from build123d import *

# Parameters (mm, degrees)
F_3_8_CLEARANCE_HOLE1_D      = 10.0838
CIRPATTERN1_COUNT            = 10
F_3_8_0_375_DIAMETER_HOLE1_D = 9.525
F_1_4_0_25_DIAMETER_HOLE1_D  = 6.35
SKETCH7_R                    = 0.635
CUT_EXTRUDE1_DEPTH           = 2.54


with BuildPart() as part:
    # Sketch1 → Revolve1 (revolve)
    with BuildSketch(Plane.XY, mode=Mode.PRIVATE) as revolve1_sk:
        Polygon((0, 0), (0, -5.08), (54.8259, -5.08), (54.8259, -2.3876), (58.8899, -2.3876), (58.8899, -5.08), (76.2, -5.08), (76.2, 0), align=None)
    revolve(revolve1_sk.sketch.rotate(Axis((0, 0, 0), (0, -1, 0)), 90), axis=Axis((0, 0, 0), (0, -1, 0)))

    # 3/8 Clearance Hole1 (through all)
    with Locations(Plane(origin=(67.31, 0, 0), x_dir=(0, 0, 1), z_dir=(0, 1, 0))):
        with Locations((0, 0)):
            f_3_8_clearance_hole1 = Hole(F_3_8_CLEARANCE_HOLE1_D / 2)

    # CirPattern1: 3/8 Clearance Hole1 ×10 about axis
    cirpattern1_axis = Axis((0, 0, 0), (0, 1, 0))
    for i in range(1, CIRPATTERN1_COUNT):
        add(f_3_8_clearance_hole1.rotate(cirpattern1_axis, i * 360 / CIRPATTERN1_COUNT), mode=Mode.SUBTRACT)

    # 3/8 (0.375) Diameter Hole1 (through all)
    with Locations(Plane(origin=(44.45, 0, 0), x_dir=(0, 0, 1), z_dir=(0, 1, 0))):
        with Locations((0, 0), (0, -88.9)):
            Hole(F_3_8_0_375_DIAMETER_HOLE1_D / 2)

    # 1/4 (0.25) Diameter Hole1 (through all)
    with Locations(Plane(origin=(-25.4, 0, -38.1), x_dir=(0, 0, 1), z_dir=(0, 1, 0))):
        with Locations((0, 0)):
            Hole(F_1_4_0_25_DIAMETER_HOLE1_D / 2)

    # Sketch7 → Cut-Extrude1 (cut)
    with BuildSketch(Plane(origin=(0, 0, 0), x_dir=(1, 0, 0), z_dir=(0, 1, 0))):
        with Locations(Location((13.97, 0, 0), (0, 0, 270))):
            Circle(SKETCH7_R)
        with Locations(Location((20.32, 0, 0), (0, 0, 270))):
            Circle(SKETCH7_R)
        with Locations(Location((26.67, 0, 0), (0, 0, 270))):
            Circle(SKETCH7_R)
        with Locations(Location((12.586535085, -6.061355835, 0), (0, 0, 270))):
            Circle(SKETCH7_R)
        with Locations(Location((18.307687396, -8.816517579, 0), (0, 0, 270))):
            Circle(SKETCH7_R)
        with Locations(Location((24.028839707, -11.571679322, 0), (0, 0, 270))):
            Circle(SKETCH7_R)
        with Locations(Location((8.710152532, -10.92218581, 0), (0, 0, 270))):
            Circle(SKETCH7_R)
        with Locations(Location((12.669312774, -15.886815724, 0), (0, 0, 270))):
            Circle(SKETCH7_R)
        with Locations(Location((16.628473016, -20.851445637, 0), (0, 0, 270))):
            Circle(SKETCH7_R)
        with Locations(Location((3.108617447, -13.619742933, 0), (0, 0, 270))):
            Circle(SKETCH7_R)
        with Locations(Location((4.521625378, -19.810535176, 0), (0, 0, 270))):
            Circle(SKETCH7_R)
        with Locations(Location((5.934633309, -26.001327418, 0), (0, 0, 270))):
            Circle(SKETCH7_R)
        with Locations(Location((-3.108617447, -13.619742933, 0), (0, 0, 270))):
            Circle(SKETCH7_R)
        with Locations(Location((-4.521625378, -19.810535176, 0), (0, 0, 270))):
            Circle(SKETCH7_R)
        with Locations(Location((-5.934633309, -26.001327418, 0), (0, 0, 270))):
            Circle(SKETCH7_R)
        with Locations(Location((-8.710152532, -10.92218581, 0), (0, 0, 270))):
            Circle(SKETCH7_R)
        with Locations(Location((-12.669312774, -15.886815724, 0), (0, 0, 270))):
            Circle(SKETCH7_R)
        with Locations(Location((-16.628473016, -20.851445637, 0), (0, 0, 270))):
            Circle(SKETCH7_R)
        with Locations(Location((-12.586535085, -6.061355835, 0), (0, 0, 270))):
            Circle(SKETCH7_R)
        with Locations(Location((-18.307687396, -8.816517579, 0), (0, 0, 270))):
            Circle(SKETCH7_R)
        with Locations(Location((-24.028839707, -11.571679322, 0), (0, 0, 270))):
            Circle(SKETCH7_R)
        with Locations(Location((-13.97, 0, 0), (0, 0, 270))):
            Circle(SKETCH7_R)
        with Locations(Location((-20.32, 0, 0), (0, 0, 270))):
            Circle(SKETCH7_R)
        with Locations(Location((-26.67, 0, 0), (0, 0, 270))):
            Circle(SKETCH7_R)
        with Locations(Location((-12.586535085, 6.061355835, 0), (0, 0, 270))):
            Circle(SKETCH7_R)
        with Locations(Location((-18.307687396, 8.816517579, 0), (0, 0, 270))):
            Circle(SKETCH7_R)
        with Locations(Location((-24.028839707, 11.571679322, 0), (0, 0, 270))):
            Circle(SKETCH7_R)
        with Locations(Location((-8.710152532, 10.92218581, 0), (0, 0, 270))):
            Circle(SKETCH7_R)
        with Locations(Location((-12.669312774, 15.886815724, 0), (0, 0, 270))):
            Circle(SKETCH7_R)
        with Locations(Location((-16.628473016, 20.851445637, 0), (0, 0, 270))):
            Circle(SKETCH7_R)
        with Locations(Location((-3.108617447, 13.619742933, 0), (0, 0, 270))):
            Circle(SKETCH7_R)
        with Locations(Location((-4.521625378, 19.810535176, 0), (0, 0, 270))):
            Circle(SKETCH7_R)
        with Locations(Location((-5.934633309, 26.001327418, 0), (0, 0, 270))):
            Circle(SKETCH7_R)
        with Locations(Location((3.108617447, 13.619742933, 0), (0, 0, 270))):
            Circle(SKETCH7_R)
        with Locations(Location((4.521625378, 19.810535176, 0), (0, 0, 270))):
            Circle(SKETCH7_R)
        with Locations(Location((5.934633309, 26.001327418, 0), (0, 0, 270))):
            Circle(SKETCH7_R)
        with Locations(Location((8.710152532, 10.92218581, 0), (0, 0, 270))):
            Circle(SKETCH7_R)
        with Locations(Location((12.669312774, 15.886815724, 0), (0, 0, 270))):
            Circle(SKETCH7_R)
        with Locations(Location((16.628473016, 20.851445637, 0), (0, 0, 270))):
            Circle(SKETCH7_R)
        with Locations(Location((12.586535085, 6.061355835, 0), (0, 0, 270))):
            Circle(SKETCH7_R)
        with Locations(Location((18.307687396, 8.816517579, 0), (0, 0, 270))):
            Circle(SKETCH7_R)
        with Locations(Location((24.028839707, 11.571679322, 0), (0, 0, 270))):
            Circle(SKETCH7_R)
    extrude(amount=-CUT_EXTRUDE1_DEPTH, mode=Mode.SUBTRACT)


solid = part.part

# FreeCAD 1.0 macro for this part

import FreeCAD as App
import Part
import Sketcher
from FreeCAD import Vector
Q = App.Units.Quantity


def add_polygon(sketch, points):
    """Adds a closed chain of lines whose ends are joined by coincident constraints."""
    first, n = sketch.GeometryCount, len(points)
    for a, b in zip(points, points[1:] + points[:1]):
        sketch.addGeometry(Part.LineSegment(App.Vector(*a, 0), App.Vector(*b, 0)), False)
    for i in range(n):
        sketch.addConstraint(Sketcher.Constraint("Coincident", first + i, 2, first + (i + 1) % n, 1))

doc = App.newDocument("Part")
body = doc.addObject("PartDesign::Body", "Body")

# Sketch on XY plane
sketch1 = body.newObject("Sketcher::SketchObject", "Sketch")
sketch1.AttachmentSupport = (doc.getObject("XY_Plane"), [""])
sketch1.MapMode = "FlatFace"
add_polygon(sketch1, [(0, 0), (0, -5.08), (54.8259, -5.08), (54.8259, -2.3876), (58.8899, -2.3876), (58.8899, -5.08), (76.2, -5.08), (76.2, 0)])  # lines 0-7
sketch1.addConstraint(Sketcher.Constraint("Vertical", 0))
sketch1.addConstraint(Sketcher.Constraint("Horizontal", 1))
sketch1.addConstraint(Sketcher.Constraint("Vertical", 2))
sketch1.addConstraint(Sketcher.Constraint("Horizontal", 3))
sketch1.addConstraint(Sketcher.Constraint("Vertical", 4))
sketch1.addConstraint(Sketcher.Constraint("Horizontal", 5))
sketch1.addConstraint(Sketcher.Constraint("Vertical", 6))
sketch1.addConstraint(Sketcher.Constraint("Horizontal", 7))
sketch1.addConstraint(Sketcher.Constraint("Coincident", 7, 2, -1, 1))
sketch1.addConstraint(Sketcher.Constraint("Horizontal", 1, 2, 4, 2))
sketch1.addConstraint(Sketcher.Constraint("DistanceX", 7, 2, 7, 1, Q("3 in")))
sketch1.addConstraint(Sketcher.Constraint("DistanceY", 0, 2, 0, 1, Q("0.2 in")))
sketch1.addConstraint(Sketcher.Constraint("DistanceX", 3, 1, 3, 2, Q("0.16 in")))
sketch1.addConstraint(Sketcher.Constraint("DistanceY", 2, 1, 2, 2, Q("0.106 in")))
sketch1.addConstraint(Sketcher.Constraint("DistanceX", 1, 1, 1, 2, Q("2.1585 in")))
revolution = body.newObject("PartDesign::Revolution", "Revolution")
revolution.Profile = sketch1
revolution.ReferenceAxis = (sketch1, ["V_Axis"])
revolution.Angle = 360

# Sketch on XZ plane
sketch2 = body.newObject("Sketcher::SketchObject", "Sketch001")
sketch2.AttachmentSupport = (doc.getObject("XZ_Plane"), [""])
sketch2.MapMode = "FlatFace"
sketch2.addGeometry(Part.Circle(Vector(67.31, 0, 0), Vector(0, 0, 1), 5.0419), False)
sketch2.addConstraint(Sketcher.Constraint("PointOnObject", 0, 3, -1))
sketch2.addConstraint(Sketcher.Constraint("Diameter", 0, Q("0.397 in")))
sketch2.addConstraint(Sketcher.Constraint("DistanceX", -1, 1, 0, 3, Q("2.65 in")))
doc.recompute()
hole = body.newObject("PartDesign::Hole", "Hole")
hole.Profile = sketch2
hole.ThreadType = "None"
hole.Diameter = Q("0.397 in")
hole.DepthType = "ThroughAll"
hole.Reversed = True
doc.recompute()

polarpattern = body.newObject("PartDesign::PolarPattern", "PolarPattern")
polarpattern.Originals = [hole]
polarpattern.Axis = (doc.getObject("Y_Axis"), [""])
polarpattern.Angle = 360
polarpattern.Occurrences = 10
body.Tip = polarpattern

# Sketch on XZ plane
sketch3 = body.newObject("Sketcher::SketchObject", "Sketch002")
sketch3.AttachmentSupport = (doc.getObject("XZ_Plane"), [""])
sketch3.MapMode = "FlatFace"
sketch3.addGeometry(Part.Circle(Vector(44.45, 0, 0), Vector(0, 0, 1), 4.7625), False)
sketch3.addGeometry(Part.Circle(Vector(-44.45, 0, 0), Vector(0, 0, 1), 4.7625), False)
sketch3.addConstraint(Sketcher.Constraint("Equal", 0, 1))
sketch3.addConstraint(Sketcher.Constraint("Symmetric", 0, 3, 1, 3, -1, 1))
sketch3.addConstraint(Sketcher.Constraint("PointOnObject", 0, 3, -1))
sketch3.addConstraint(Sketcher.Constraint("Diameter", 0, Q("0.375 in")))
sketch3.addConstraint(Sketcher.Constraint("DistanceX", 1, 3, 0, 3, Q("3.5 in")))
doc.recompute()
hole2 = body.newObject("PartDesign::Hole", "Hole001")
hole2.Profile = sketch3
hole2.ThreadType = "None"
hole2.Diameter = Q("0.375 in")
hole2.DepthType = "ThroughAll"
hole2.Reversed = True

# Sketch on XZ plane
sketch4 = body.newObject("Sketcher::SketchObject", "Sketch003")
sketch4.AttachmentSupport = (doc.getObject("XZ_Plane"), [""])
sketch4.MapMode = "FlatFace"
sketch4.addGeometry(Part.Circle(Vector(-25.4, -38.1, 0), Vector(0, 0, 1), 3.175), False)
sketch4.addConstraint(Sketcher.Constraint("Diameter", 0, Q("0.25 in")))
sketch4.addConstraint(Sketcher.Constraint("DistanceX", 0, 3, -1, 1, Q("1 in")))
sketch4.addConstraint(Sketcher.Constraint("DistanceY", 0, 3, -1, 1, Q("1.5 in")))
doc.recompute()
hole3 = body.newObject("PartDesign::Hole", "Hole002")
hole3.Profile = sketch4
hole3.ThreadType = "None"
hole3.Diameter = Q("0.25 in")
hole3.DepthType = "ThroughAll"
hole3.Reversed = True

# Sketch on XZ plane
sketch5 = body.newObject("Sketcher::SketchObject", "Sketch004")
sketch5.AttachmentSupport = (doc.getObject("XZ_Plane"), [""])
sketch5.MapMode = "FlatFace"
sketch5.addGeometry(Part.Circle(Vector(13.97, 0, 0), Vector(0, 0, 1), 0.635), False)
sketch5.addGeometry(Part.Circle(Vector(20.32, 0, 0), Vector(0, 0, 1), 0.635), False)
sketch5.addGeometry(Part.Circle(Vector(26.67, 0, 0), Vector(0, 0, 1), 0.635), False)
sketch5.addGeometry(Part.Circle(Vector(12.586535, 6.061356, 0), Vector(0, 0, 1), 0.635), False)
sketch5.addGeometry(Part.Circle(Vector(18.307687, 8.816518, 0), Vector(0, 0, 1), 0.635), False)
sketch5.addGeometry(Part.Circle(Vector(24.02884, 11.571679, 0), Vector(0, 0, 1), 0.635), False)
sketch5.addGeometry(Part.Circle(Vector(8.710153, 10.922186, 0), Vector(0, 0, 1), 0.635), False)
sketch5.addGeometry(Part.Circle(Vector(12.669313, 15.886816, 0), Vector(0, 0, 1), 0.635), False)
sketch5.addGeometry(Part.Circle(Vector(16.628473, 20.851446, 0), Vector(0, 0, 1), 0.635), False)
sketch5.addGeometry(Part.Circle(Vector(3.108617, 13.619743, 0), Vector(0, 0, 1), 0.635), False)
sketch5.addGeometry(Part.Circle(Vector(4.521625, 19.810535, 0), Vector(0, 0, 1), 0.635), False)
sketch5.addGeometry(Part.Circle(Vector(5.934633, 26.001327, 0), Vector(0, 0, 1), 0.635), False)
sketch5.addGeometry(Part.Circle(Vector(-3.108617, 13.619743, 0), Vector(0, 0, 1), 0.635), False)
sketch5.addGeometry(Part.Circle(Vector(-4.521625, 19.810535, 0), Vector(0, 0, 1), 0.635), False)
sketch5.addGeometry(Part.Circle(Vector(-5.934633, 26.001327, 0), Vector(0, 0, 1), 0.635), False)
sketch5.addGeometry(Part.Circle(Vector(-8.710153, 10.922186, 0), Vector(0, 0, 1), 0.635), False)
sketch5.addGeometry(Part.Circle(Vector(-12.669313, 15.886816, 0), Vector(0, 0, 1), 0.635), False)
sketch5.addGeometry(Part.Circle(Vector(-16.628473, 20.851446, 0), Vector(0, 0, 1), 0.635), False)
sketch5.addGeometry(Part.Circle(Vector(-12.586535, 6.061356, 0), Vector(0, 0, 1), 0.635), False)
sketch5.addGeometry(Part.Circle(Vector(-18.307687, 8.816518, 0), Vector(0, 0, 1), 0.635), False)
sketch5.addGeometry(Part.Circle(Vector(-24.02884, 11.571679, 0), Vector(0, 0, 1), 0.635), False)
sketch5.addGeometry(Part.Circle(Vector(-13.97, 0, 0), Vector(0, 0, 1), 0.635), False)
sketch5.addGeometry(Part.Circle(Vector(-20.32, 0, 0), Vector(0, 0, 1), 0.635), False)
sketch5.addGeometry(Part.Circle(Vector(-26.67, 0, 0), Vector(0, 0, 1), 0.635), False)
sketch5.addGeometry(Part.Circle(Vector(-12.586535, -6.061356, 0), Vector(0, 0, 1), 0.635), False)
sketch5.addGeometry(Part.Circle(Vector(-18.307687, -8.816518, 0), Vector(0, 0, 1), 0.635), False)
sketch5.addGeometry(Part.Circle(Vector(-24.02884, -11.571679, 0), Vector(0, 0, 1), 0.635), False)
sketch5.addGeometry(Part.Circle(Vector(-8.710153, -10.922186, 0), Vector(0, 0, 1), 0.635), False)
sketch5.addGeometry(Part.Circle(Vector(-12.669313, -15.886816, 0), Vector(0, 0, 1), 0.635), False)
sketch5.addGeometry(Part.Circle(Vector(-16.628473, -20.851446, 0), Vector(0, 0, 1), 0.635), False)
sketch5.addGeometry(Part.Circle(Vector(-3.108617, -13.619743, 0), Vector(0, 0, 1), 0.635), False)
sketch5.addGeometry(Part.Circle(Vector(-4.521625, -19.810535, 0), Vector(0, 0, 1), 0.635), False)
sketch5.addGeometry(Part.Circle(Vector(-5.934633, -26.001327, 0), Vector(0, 0, 1), 0.635), False)
sketch5.addGeometry(Part.Circle(Vector(3.108617, -13.619743, 0), Vector(0, 0, 1), 0.635), False)
sketch5.addGeometry(Part.Circle(Vector(4.521625, -19.810535, 0), Vector(0, 0, 1), 0.635), False)
sketch5.addGeometry(Part.Circle(Vector(5.934633, -26.001327, 0), Vector(0, 0, 1), 0.635), False)
sketch5.addGeometry(Part.Circle(Vector(8.710153, -10.922186, 0), Vector(0, 0, 1), 0.635), False)
sketch5.addGeometry(Part.Circle(Vector(12.669313, -15.886816, 0), Vector(0, 0, 1), 0.635), False)
sketch5.addGeometry(Part.Circle(Vector(16.628473, -20.851446, 0), Vector(0, 0, 1), 0.635), False)
sketch5.addGeometry(Part.Circle(Vector(12.586535, -6.061356, 0), Vector(0, 0, 1), 0.635), False)
sketch5.addGeometry(Part.Circle(Vector(18.307687, -8.816518, 0), Vector(0, 0, 1), 0.635), False)
sketch5.addGeometry(Part.Circle(Vector(24.02884, -11.571679, 0), Vector(0, 0, 1), 0.635), False)
sketch5.addConstraint(Sketcher.Constraint("Equal", 0, 1))
sketch5.addConstraint(Sketcher.Constraint("Equal", 1, 2))
sketch5.addConstraint(Sketcher.Constraint("Equal", 2, 3))
sketch5.addConstraint(Sketcher.Constraint("Equal", 3, 4))
sketch5.addConstraint(Sketcher.Constraint("Equal", 4, 5))
sketch5.addConstraint(Sketcher.Constraint("Equal", 5, 6))
sketch5.addConstraint(Sketcher.Constraint("Equal", 6, 7))
sketch5.addConstraint(Sketcher.Constraint("Equal", 7, 8))
sketch5.addConstraint(Sketcher.Constraint("Equal", 8, 9))
sketch5.addConstraint(Sketcher.Constraint("Equal", 9, 10))
sketch5.addConstraint(Sketcher.Constraint("Equal", 10, 11))
sketch5.addConstraint(Sketcher.Constraint("Equal", 11, 12))
sketch5.addConstraint(Sketcher.Constraint("Equal", 12, 13))
sketch5.addConstraint(Sketcher.Constraint("Equal", 13, 14))
sketch5.addConstraint(Sketcher.Constraint("Equal", 14, 15))
sketch5.addConstraint(Sketcher.Constraint("Equal", 15, 16))
sketch5.addConstraint(Sketcher.Constraint("Equal", 16, 17))
sketch5.addConstraint(Sketcher.Constraint("Equal", 17, 18))
sketch5.addConstraint(Sketcher.Constraint("Equal", 18, 19))
sketch5.addConstraint(Sketcher.Constraint("Equal", 19, 20))
sketch5.addConstraint(Sketcher.Constraint("Equal", 20, 21))
sketch5.addConstraint(Sketcher.Constraint("Equal", 21, 22))
sketch5.addConstraint(Sketcher.Constraint("Equal", 22, 23))
sketch5.addConstraint(Sketcher.Constraint("Equal", 23, 24))
sketch5.addConstraint(Sketcher.Constraint("Equal", 24, 25))
sketch5.addConstraint(Sketcher.Constraint("Equal", 25, 26))
sketch5.addConstraint(Sketcher.Constraint("Equal", 26, 27))
sketch5.addConstraint(Sketcher.Constraint("Equal", 27, 28))
sketch5.addConstraint(Sketcher.Constraint("Equal", 28, 29))
sketch5.addConstraint(Sketcher.Constraint("Equal", 29, 30))
sketch5.addConstraint(Sketcher.Constraint("Equal", 30, 31))
sketch5.addConstraint(Sketcher.Constraint("Equal", 31, 32))
sketch5.addConstraint(Sketcher.Constraint("Equal", 32, 33))
sketch5.addConstraint(Sketcher.Constraint("Equal", 33, 34))
sketch5.addConstraint(Sketcher.Constraint("Equal", 34, 35))
sketch5.addConstraint(Sketcher.Constraint("Equal", 35, 36))
sketch5.addConstraint(Sketcher.Constraint("Equal", 36, 37))
sketch5.addConstraint(Sketcher.Constraint("Equal", 37, 38))
sketch5.addConstraint(Sketcher.Constraint("Equal", 38, 39))
sketch5.addConstraint(Sketcher.Constraint("Equal", 39, 40))
sketch5.addConstraint(Sketcher.Constraint("Equal", 40, 41))
sketch5.addConstraint(Sketcher.Constraint("Symmetric", 0, 3, 21, 3, -1, 1))
sketch5.addConstraint(Sketcher.Constraint("Symmetric", 1, 3, 22, 3, -1, 1))
sketch5.addConstraint(Sketcher.Constraint("Symmetric", 2, 3, 23, 3, -1, 1))
sketch5.addConstraint(Sketcher.Constraint("Symmetric", 3, 3, 24, 3, -1, 1))
sketch5.addConstraint(Sketcher.Constraint("Symmetric", 4, 3, 25, 3, -1, 1))
sketch5.addConstraint(Sketcher.Constraint("Symmetric", 5, 3, 26, 3, -1, 1))
sketch5.addConstraint(Sketcher.Constraint("Symmetric", 6, 3, 27, 3, -1, 1))
sketch5.addConstraint(Sketcher.Constraint("Symmetric", 7, 3, 28, 3, -1, 1))
sketch5.addConstraint(Sketcher.Constraint("Symmetric", 8, 3, 29, 3, -1, 1))
sketch5.addConstraint(Sketcher.Constraint("Symmetric", 9, 3, 30, 3, -1, 1))
sketch5.addConstraint(Sketcher.Constraint("Symmetric", 10, 3, 31, 3, -1, 1))
sketch5.addConstraint(Sketcher.Constraint("Symmetric", 11, 3, 32, 3, -1, 1))
sketch5.addConstraint(Sketcher.Constraint("Symmetric", 12, 3, 33, 3, -1, 1))
sketch5.addConstraint(Sketcher.Constraint("Symmetric", 13, 3, 34, 3, -1, 1))
sketch5.addConstraint(Sketcher.Constraint("Symmetric", 14, 3, 35, 3, -1, 1))
sketch5.addConstraint(Sketcher.Constraint("Symmetric", 15, 3, 36, 3, -1, 1))
sketch5.addConstraint(Sketcher.Constraint("Symmetric", 16, 3, 37, 3, -1, 1))
sketch5.addConstraint(Sketcher.Constraint("Symmetric", 17, 3, 38, 3, -1, 1))
sketch5.addConstraint(Sketcher.Constraint("Symmetric", 18, 3, 39, 3, -1, 1))
sketch5.addConstraint(Sketcher.Constraint("Symmetric", 19, 3, 40, 3, -1, 1))
sketch5.addConstraint(Sketcher.Constraint("Symmetric", 20, 3, 41, 3, -1, 1))
sketch5.addConstraint(Sketcher.Constraint("Symmetric", 9, 3, 12, 3, -2))
sketch5.addConstraint(Sketcher.Constraint("Symmetric", 10, 3, 13, 3, -2))
sketch5.addConstraint(Sketcher.Constraint("Symmetric", 11, 3, 14, 3, -2))
sketch5.addConstraint(Sketcher.Constraint("Symmetric", 6, 3, 15, 3, -2))
sketch5.addConstraint(Sketcher.Constraint("Symmetric", 7, 3, 16, 3, -2))
sketch5.addConstraint(Sketcher.Constraint("Symmetric", 8, 3, 17, 3, -2))
sketch5.addConstraint(Sketcher.Constraint("Symmetric", 3, 3, 18, 3, -2))
sketch5.addConstraint(Sketcher.Constraint("Symmetric", 4, 3, 19, 3, -2))
sketch5.addConstraint(Sketcher.Constraint("Symmetric", 5, 3, 20, 3, -2))
sketch5.addConstraint(Sketcher.Constraint("PointOnObject", 0, 3, -1))
sketch5.addConstraint(Sketcher.Constraint("PointOnObject", 1, 3, -1))
sketch5.addConstraint(Sketcher.Constraint("PointOnObject", 2, 3, -1))
sketch5.addConstraint(Sketcher.Constraint("Diameter", 0, Q("0.05 in")))
sketch5.addConstraint(Sketcher.Constraint("DistanceX", -1, 1, 1, 3, Q("0.8 in")))
sketch5.addConstraint(Sketcher.Constraint("DistanceX", 0, 3, 2, 3, Q("0.5 in")))
sketch5.addConstraint(Sketcher.Constraint("DistanceX", -1, 1, 0, 3, Q("0.55 in")))
sketch5.addConstraint(Sketcher.Constraint("DistanceY", 4, 3, 7, 3, Q("7.070298 mm")))
sketch5.addConstraint(Sketcher.Constraint("DistanceX", -1, 1, 5, 3, Q("24.02884 mm")))
sketch5.addConstraint(Sketcher.Constraint("DistanceY", -1, 1, 5, 3, Q("11.571679 mm")))
sketch5.addConstraint(Sketcher.Constraint("DistanceY", 3, 3, 4, 3, Q("2.755162 mm")))
sketch5.addConstraint(Sketcher.Constraint("DistanceY", 4, 3, 5, 3, Q("2.755162 mm")))
sketch5.addConstraint(Sketcher.Constraint("DistanceY", 3, 3, 6, 3, Q("4.86083 mm")))
sketch5.addConstraint(Sketcher.Constraint("DistanceX", 6, 3, 7, 3, Q("3.95916 mm")))
sketch5.addConstraint(Sketcher.Constraint("DistanceX", 7, 3, 8, 3, Q("3.95916 mm")))
sketch5.addConstraint(Sketcher.Constraint("DistanceY", 7, 3, 8, 3, Q("4.96463 mm")))
sketch5.addConstraint(Sketcher.Constraint("DistanceX", 9, 3, 4, 3, Q("15.19907 mm")))
sketch5.addConstraint(Sketcher.Constraint("DistanceY", 7, 3, 10, 3, Q("3.923719 mm")))
sketch5.addConstraint(Sketcher.Constraint("DistanceX", 10, 3, 3, 3, Q("8.06491 mm")))
sketch5.addConstraint(Sketcher.Constraint("DistanceX", 11, 3, 8, 3, Q("10.69384 mm")))
sketch5.addConstraint(Sketcher.Constraint("DistanceY", 8, 3, 11, 3, Q("5.149882 mm")))
sketch5.addConstraint(Sketcher.Constraint("DistanceX", 12, 3, 6, 3, Q("11.81877 mm")))
sketch5.addConstraint(Sketcher.Constraint("DistanceX", 13, 3, 10, 3, Q("9.043251 mm")))
sketch5.addConstraint(Sketcher.Constraint("DistanceX", 13, 3, 11, 3, Q("10.456259 mm")))
sketch5.addConstraint(Sketcher.Constraint("DistanceY", -1, 1, 9, 3, Q("13.619743 mm")))
pocket1 = body.newObject("PartDesign::Pocket", "Pocket")
pocket1.Profile = sketch5
pocket1.Length = Q("0.1 in")
pocket1.Reversed = True

doc.recompute()
